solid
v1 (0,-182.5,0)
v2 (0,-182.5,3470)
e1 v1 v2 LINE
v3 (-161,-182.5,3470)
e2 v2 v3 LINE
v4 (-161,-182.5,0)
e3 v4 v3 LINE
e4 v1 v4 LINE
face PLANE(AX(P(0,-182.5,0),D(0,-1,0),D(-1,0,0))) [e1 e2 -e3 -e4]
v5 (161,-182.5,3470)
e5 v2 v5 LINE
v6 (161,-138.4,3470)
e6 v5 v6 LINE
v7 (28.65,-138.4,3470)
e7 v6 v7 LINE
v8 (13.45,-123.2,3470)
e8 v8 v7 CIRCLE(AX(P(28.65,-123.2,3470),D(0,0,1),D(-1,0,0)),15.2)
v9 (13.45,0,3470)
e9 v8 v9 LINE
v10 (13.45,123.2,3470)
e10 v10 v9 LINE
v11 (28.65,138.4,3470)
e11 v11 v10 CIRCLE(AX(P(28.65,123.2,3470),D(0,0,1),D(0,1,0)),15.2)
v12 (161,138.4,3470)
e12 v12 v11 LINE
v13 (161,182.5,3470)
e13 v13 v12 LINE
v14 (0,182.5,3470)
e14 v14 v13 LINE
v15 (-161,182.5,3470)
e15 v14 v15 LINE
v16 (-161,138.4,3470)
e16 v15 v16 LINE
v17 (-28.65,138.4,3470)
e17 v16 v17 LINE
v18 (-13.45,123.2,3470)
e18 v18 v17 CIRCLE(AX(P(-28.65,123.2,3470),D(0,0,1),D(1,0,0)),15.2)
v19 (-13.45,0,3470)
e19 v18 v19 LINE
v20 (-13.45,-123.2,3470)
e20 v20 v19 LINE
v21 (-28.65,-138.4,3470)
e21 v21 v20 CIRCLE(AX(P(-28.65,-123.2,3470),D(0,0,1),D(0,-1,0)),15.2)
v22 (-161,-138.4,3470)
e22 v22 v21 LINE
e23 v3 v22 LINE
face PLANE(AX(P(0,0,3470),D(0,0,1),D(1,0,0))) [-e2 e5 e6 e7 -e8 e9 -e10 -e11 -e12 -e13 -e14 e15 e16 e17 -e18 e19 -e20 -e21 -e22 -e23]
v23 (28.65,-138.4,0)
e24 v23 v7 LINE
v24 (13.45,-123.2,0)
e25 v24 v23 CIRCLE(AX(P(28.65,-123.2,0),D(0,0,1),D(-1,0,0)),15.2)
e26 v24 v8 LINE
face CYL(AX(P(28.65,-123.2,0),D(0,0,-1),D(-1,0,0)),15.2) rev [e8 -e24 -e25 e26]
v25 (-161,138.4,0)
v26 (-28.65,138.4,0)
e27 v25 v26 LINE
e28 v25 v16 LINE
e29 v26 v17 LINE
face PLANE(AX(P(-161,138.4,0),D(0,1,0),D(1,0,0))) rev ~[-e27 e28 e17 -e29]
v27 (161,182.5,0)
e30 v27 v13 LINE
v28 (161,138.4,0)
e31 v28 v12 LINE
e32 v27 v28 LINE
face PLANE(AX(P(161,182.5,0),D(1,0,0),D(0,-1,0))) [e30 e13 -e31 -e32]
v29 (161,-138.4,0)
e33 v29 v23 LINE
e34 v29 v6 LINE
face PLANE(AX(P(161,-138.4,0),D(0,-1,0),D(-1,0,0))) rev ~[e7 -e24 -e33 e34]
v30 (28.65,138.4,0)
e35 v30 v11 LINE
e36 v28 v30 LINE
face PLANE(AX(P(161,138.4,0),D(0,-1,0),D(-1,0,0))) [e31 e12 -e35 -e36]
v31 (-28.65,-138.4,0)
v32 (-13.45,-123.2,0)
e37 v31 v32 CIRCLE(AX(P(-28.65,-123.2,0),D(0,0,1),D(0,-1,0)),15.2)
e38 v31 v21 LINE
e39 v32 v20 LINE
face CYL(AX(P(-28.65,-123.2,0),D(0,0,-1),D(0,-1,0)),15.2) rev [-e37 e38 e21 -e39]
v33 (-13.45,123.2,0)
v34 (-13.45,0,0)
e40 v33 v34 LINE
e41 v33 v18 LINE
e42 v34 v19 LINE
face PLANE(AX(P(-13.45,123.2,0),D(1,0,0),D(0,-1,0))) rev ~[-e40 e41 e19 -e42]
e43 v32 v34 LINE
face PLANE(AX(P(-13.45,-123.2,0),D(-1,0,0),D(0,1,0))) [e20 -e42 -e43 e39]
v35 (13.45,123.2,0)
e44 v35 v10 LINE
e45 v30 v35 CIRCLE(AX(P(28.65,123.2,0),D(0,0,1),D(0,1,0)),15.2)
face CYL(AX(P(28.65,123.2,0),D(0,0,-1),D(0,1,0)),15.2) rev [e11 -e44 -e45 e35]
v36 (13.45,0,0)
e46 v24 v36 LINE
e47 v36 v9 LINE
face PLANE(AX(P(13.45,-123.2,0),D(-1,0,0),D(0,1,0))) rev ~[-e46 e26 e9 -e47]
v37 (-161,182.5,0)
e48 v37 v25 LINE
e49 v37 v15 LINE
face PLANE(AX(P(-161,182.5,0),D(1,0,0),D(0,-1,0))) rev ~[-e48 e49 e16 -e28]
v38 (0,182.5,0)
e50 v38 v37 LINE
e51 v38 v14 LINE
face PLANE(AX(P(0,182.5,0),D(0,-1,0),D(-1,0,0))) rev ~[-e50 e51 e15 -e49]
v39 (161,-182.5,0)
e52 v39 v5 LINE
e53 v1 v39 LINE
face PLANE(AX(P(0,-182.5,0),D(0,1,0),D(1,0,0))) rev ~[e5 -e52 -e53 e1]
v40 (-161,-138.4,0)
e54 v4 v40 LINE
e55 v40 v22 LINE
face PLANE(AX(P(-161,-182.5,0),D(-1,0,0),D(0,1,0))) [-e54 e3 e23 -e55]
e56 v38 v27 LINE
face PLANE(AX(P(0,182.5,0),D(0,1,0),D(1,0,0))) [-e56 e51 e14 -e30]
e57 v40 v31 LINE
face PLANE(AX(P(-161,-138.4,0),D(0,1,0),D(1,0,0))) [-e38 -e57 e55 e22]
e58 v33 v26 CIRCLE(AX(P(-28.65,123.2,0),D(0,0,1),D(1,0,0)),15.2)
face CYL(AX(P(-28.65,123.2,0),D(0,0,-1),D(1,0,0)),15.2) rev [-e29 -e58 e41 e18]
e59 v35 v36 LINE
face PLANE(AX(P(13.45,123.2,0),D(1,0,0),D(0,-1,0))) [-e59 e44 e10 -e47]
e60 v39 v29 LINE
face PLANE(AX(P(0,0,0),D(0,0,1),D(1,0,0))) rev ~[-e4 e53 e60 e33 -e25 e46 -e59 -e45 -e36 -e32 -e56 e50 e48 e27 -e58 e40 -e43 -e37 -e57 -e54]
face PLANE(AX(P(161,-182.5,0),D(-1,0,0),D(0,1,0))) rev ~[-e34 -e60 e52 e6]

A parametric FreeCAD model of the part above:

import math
import FreeCAD as App
import Part
import Sketcher

doc = App.newDocument("Part")
params = doc.addObject("Spreadsheet::Sheet", "Params")
for row, (alias, value) in enumerate([
    ("sketch1_radius", "15.2 mm"),
    ("sketch1_height", "44.1 mm"),
    ("pad1_length", "3470 mm"),
], start=1):
    params.set(f"A{row}", alias)
    params.set(f"B{row}", "=" + value)
    params.setAlias(f"B{row}", alias)

body = doc.addObject("PartDesign::Body", "Body")

# Sketch on XY plane
sketch1 = doc.addObject("Sketcher::SketchObject", "Sketch")
body.addObject(sketch1)
sketch1.AttachmentSupport = (doc.XY_Plane, [""])
sketch1.MapMode = "FlatFace"
sketch1.addGeometry(Part.LineSegment(App.Vector(-161, -138, 0), App.Vector(-161, -182, 0)), False)
sketch1.addGeometry(Part.LineSegment(App.Vector(-161, -182, 0), App.Vector(161, -182, 0)), False)
sketch1.addGeometry(Part.LineSegment(App.Vector(161, -182, 0), App.Vector(161, -138, 0)), False)
sketch1.addGeometry(Part.LineSegment(App.Vector(161, -138, 0), App.Vector(29, -138, 0)), False)
sketch1.addGeometry(Part.ArcOfCircle(Part.Circle(App.Vector(29, -123, 0), App.Vector(0, 0, 1), 15), math.radians(180), math.radians(270)), False)
sketch1.addGeometry(Part.LineSegment(App.Vector(13, -123, 0), App.Vector(13, 123, 0)), False)
sketch1.addGeometry(Part.ArcOfCircle(Part.Circle(App.Vector(29, 123, 0), App.Vector(0, 0, 1), 15), math.radians(90), math.radians(180)), False)
sketch1.addGeometry(Part.LineSegment(App.Vector(29, 138, 0), App.Vector(161, 138, 0)), False)
sketch1.addGeometry(Part.LineSegment(App.Vector(161, 138, 0), App.Vector(161, 182, 0)), False)
sketch1.addGeometry(Part.LineSegment(App.Vector(161, 182, 0), App.Vector(-161, 182, 0)), False)
sketch1.addGeometry(Part.LineSegment(App.Vector(-161, 182, 0), App.Vector(-161, 138, 0)), False)
sketch1.addGeometry(Part.LineSegment(App.Vector(-161, 138, 0), App.Vector(-29, 138, 0)), False)
sketch1.addGeometry(Part.ArcOfCircle(Part.Circle(App.Vector(-29, 123, 0), App.Vector(0, 0, 1), 15), math.radians(0), math.radians(90)), False)
sketch1.addGeometry(Part.LineSegment(App.Vector(-13, 123, 0), App.Vector(-13, -123, 0)), False)
sketch1.addGeometry(Part.ArcOfCircle(Part.Circle(App.Vector(-29, -123, 0), App.Vector(0, 0, 1), 15), math.radians(-90), math.radians(0)), False)
sketch1.addGeometry(Part.LineSegment(App.Vector(-29, -138, 0), App.Vector(-161, -138, 0)), False)
sketch1.addConstraint(Sketcher.Constraint("Coincident", 0, 2, 1, 1))
sketch1.addConstraint(Sketcher.Constraint("Coincident", 1, 2, 2, 1))
sketch1.addConstraint(Sketcher.Constraint("Coincident", 2, 2, 3, 1))
sketch1.addConstraint(Sketcher.Constraint("Tangent", 3, 2, 4, 2))
sketch1.addConstraint(Sketcher.Constraint("Tangent", 4, 1, 5, 1))
sketch1.addConstraint(Sketcher.Constraint("Tangent", 5, 2, 6, 2))
sketch1.addConstraint(Sketcher.Constraint("Tangent", 6, 1, 7, 1))
sketch1.addConstraint(Sketcher.Constraint("Coincident", 7, 2, 8, 1))
sketch1.addConstraint(Sketcher.Constraint("Coincident", 8, 2, 9, 1))
sketch1.addConstraint(Sketcher.Constraint("Coincident", 9, 2, 10, 1))
sketch1.addConstraint(Sketcher.Constraint("Coincident", 10, 2, 11, 1))
sketch1.addConstraint(Sketcher.Constraint("Tangent", 11, 2, 12, 2))
sketch1.addConstraint(Sketcher.Constraint("Tangent", 12, 1, 13, 1))
sketch1.addConstraint(Sketcher.Constraint("Tangent", 13, 2, 14, 2))
sketch1.addConstraint(Sketcher.Constraint("Tangent", 14, 1, 15, 1))
sketch1.addConstraint(Sketcher.Constraint("Coincident", 15, 2, 0, 1))
sketch1.addConstraint(Sketcher.Constraint("Vertical", 0))
sketch1.addConstraint(Sketcher.Constraint("Horizontal", 1))
sketch1.addConstraint(Sketcher.Constraint("Vertical", 2))
sketch1.addConstraint(Sketcher.Constraint("Horizontal", 3))
sketch1.addConstraint(Sketcher.Constraint("Vertical", 5))
sketch1.addConstraint(Sketcher.Constraint("Horizontal", 7))
sketch1.addConstraint(Sketcher.Constraint("Vertical", 8))
sketch1.addConstraint(Sketcher.Constraint("Horizontal", 9))
sketch1.addConstraint(Sketcher.Constraint("Vertical", 10))
sketch1.addConstraint(Sketcher.Constraint("Horizontal", 11))
sketch1.addConstraint(Sketcher.Constraint("Vertical", 13))
sketch1.addConstraint(Sketcher.Constraint("Horizontal", 15))
sketch1.addConstraint(Sketcher.Constraint("Equal", 4, 6))
sketch1.addConstraint(Sketcher.Constraint("Equal", 6, 12))
sketch1.addConstraint(Sketcher.Constraint("Equal", 12, 14))
sketch1.addConstraint(Sketcher.Constraint("Symmetric", 4, 3, 12, 3, -1, 1))
sketch1.addConstraint(Sketcher.Constraint("Symmetric", 0, 2, 8, 2, -1, 1))
sketch1.addConstraint(Sketcher.Constraint("Symmetric", 7, 2, 10, 2, -2))
sketch1.addConstraint(Sketcher.Constraint("Symmetric", 2, 2, 15, 2, -2))
sketch1.addConstraint(Sketcher.Constraint("Radius", 4, 15.2))
sketch1.addConstraint(Sketcher.Constraint("DistanceY", 0, 2, 0, 1, 44.1))
sketch1.addConstraint(Sketcher.Constraint("DistanceX", 0, 2, -1, 1, 161.0))
sketch1.addConstraint(Sketcher.Constraint("DistanceY", 0, 2, -1, 1, 182.5))
sketch1.addConstraint(Sketcher.Constraint("DistanceX", -1, 1, 4, 1, 13.45))
sketch1.setExpression("Constraints[35]", "Params.sketch1_radius")
sketch1.setExpression("Constraints[36]", "Params.sketch1_height")
pad1 = doc.addObject("PartDesign::Pad", "Pad")
body.addObject(pad1)
pad1.Profile = sketch1
pad1.setExpression("Length", "Params.pad1_length")

doc.recompute()
